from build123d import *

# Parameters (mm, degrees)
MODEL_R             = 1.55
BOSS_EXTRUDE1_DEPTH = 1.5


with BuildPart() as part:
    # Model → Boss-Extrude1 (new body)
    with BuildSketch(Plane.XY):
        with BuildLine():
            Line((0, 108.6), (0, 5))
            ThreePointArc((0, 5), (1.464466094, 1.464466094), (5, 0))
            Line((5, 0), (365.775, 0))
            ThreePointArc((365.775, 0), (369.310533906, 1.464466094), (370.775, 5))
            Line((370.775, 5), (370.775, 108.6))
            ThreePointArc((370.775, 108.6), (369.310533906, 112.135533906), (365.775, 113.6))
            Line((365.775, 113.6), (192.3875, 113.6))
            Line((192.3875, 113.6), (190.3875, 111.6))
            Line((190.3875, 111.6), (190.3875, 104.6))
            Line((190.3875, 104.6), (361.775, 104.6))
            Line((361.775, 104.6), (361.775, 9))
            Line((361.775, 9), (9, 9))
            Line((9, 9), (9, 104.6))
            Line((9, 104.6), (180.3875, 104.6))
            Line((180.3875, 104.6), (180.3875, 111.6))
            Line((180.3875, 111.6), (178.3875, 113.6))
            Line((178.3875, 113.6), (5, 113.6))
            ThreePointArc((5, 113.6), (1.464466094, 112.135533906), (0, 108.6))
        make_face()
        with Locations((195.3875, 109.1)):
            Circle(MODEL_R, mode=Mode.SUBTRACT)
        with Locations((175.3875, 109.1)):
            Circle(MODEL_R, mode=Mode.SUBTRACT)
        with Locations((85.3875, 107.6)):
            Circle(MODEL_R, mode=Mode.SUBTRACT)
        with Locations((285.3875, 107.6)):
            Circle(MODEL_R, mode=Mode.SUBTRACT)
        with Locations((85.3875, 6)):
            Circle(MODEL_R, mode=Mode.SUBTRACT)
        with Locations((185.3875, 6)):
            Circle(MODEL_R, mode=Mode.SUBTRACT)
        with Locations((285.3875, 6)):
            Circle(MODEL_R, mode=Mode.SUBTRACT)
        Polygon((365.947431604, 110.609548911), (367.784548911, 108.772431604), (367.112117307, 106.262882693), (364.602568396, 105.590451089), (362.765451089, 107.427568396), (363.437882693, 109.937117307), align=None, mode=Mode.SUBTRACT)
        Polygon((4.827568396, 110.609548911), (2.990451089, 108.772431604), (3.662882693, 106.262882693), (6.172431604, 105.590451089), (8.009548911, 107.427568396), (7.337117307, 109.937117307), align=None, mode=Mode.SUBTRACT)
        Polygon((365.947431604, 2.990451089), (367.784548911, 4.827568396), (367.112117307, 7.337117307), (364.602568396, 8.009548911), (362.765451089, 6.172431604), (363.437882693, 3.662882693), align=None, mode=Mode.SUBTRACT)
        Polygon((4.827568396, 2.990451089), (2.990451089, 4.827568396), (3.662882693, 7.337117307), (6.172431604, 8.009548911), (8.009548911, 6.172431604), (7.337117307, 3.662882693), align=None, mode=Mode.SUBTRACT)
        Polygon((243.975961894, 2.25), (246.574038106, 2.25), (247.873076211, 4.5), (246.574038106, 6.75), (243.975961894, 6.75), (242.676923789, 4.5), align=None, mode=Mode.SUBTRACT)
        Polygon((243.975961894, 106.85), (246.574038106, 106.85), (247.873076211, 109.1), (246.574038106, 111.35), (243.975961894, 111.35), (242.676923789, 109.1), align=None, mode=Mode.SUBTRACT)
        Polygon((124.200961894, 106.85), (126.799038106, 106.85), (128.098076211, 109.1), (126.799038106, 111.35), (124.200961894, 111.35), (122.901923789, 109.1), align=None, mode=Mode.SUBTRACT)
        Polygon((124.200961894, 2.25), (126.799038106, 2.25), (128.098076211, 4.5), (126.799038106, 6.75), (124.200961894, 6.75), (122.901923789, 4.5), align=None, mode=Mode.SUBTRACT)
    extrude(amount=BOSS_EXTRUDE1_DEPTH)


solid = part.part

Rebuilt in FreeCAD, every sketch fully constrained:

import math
import FreeCAD as App
import Part
import Sketcher
Q = App.Units.Quantity

doc = App.newDocument("Part")
body = doc.addObject("PartDesign::Body", "Body")

sketch1 = body.newObject("Sketcher::SketchObject", "Sketch")
sketch1.AttachmentSupport = (doc.getObject("XY_Plane"), [""])
sketch1.MapMode = "FlatFace"
sketch1.addGeometry(Part.LineSegment(App.Vector(0, 108.6, 0), App.Vector(0, 5, 0)), False)
sketch1.addGeometry(Part.ArcOfCircle(Part.Circle(App.Vector(5, 5, 0), App.Vector(0, 0, 1), 5), math.radians(180), math.radians(270)), False)
sketch1.addGeometry(Part.LineSegment(App.Vector(5, 0, 0), App.Vector(365.8, 0, 0)), False)
sketch1.addGeometry(Part.ArcOfCircle(Part.Circle(App.Vector(365.8, 5, 0), App.Vector(0, 0, 1), 5), math.radians(-90), math.radians(0)), False)
sketch1.addGeometry(Part.LineSegment(App.Vector(370.8, 5, 0), App.Vector(370.8, 108.6, 0)), False)
sketch1.addGeometry(Part.ArcOfCircle(Part.Circle(App.Vector(365.8, 108.6, 0), App.Vector(0, 0, 1), 5), math.radians(0), math.radians(90)), False)
sketch1.addGeometry(Part.LineSegment(App.Vector(365.8, 113.6, 0), App.Vector(192.4, 113.6, 0)), False)
sketch1.addGeometry(Part.LineSegment(App.Vector(192.4, 113.6, 0), App.Vector(190.4, 111.6, 0)), False)
sketch1.addGeometry(Part.LineSegment(App.Vector(190.4, 111.6, 0), App.Vector(190.4, 104.6, 0)), False)
sketch1.addGeometry(Part.LineSegment(App.Vector(190.4, 104.6, 0), App.Vector(361.8, 104.6, 0)), False)
sketch1.addGeometry(Part.LineSegment(App.Vector(361.8, 104.6, 0), App.Vector(361.8, 9, 0)), False)
sketch1.addGeometry(Part.LineSegment(App.Vector(361.8, 9, 0), App.Vector(9, 9, 0)), False)
sketch1.addGeometry(Part.LineSegment(App.Vector(9, 9, 0), App.Vector(9, 104.6, 0)), False)
sketch1.addGeometry(Part.LineSegment(App.Vector(9, 104.6, 0), App.Vector(180.4, 104.6, 0)), False)
sketch1.addGeometry(Part.LineSegment(App.Vector(180.4, 104.6, 0), App.Vector(180.4, 111.6, 0)), False)
sketch1.addGeometry(Part.LineSegment(App.Vector(180.4, 111.6, 0), App.Vector(178.4, 113.6, 0)), False)
sketch1.addGeometry(Part.LineSegment(App.Vector(178.4, 113.6, 0), App.Vector(5, 113.6, 0)), False)
sketch1.addGeometry(Part.ArcOfCircle(Part.Circle(App.Vector(5, 108.6, 0), App.Vector(0, 0, 1), 5), math.radians(90), math.radians(180)), False)
sketch1.addGeometry(Part.LineSegment(App.Vector(7.3, 3.7, 0), App.Vector(4.8, 3, 0)), False)
sketch1.addGeometry(Part.LineSegment(App.Vector(4.8, 3, 0), App.Vector(3, 4.8, 0)), False)
sketch1.addGeometry(Part.LineSegment(App.Vector(3, 4.8, 0), App.Vector(3.7, 7.3, 0)), False)
sketch1.addGeometry(Part.LineSegment(App.Vector(3.7, 7.3, 0), App.Vector(6.2, 8, 0)), False)
sketch1.addGeometry(Part.LineSegment(App.Vector(6.2, 8, 0), App.Vector(8, 6.2, 0)), False)
sketch1.addGeometry(Part.LineSegment(App.Vector(8, 6.2, 0), App.Vector(7.3, 3.7, 0)), False)
sketch1.addGeometry(Part.Circle(App.Vector(85.4, 6, 0), App.Vector(0, 0, 1), 1.6), False)
sketch1.addGeometry(Part.LineSegment(App.Vector(126.8, 2.2, 0), App.Vector(124.2, 2.2, 0)), False)
sketch1.addGeometry(Part.LineSegment(App.Vector(124.2, 2.2, 0), App.Vector(122.9, 4.5, 0)), False)
sketch1.addGeometry(Part.LineSegment(App.Vector(122.9, 4.5, 0), App.Vector(124.2, 6.8, 0)), False)
sketch1.addGeometry(Part.LineSegment(App.Vector(124.2, 6.8, 0), App.Vector(126.8, 6.8, 0)), False)
sketch1.addGeometry(Part.LineSegment(App.Vector(126.8, 6.8, 0), App.Vector(128.1, 4.5, 0)), False)
sketch1.addGeometry(Part.LineSegment(App.Vector(128.1, 4.5, 0), App.Vector(126.8, 2.2, 0)), False)
sketch1.addGeometry(Part.Circle(App.Vector(185.4, 6, 0), App.Vector(0, 0, 1), 1.6), False)
sketch1.addGeometry(Part.LineSegment(App.Vector(246.6, 2.2, 0), App.Vector(244, 2.2, 0)), False)
sketch1.addGeometry(Part.LineSegment(App.Vector(244, 2.2, 0), App.Vector(242.7, 4.5, 0)), False)
sketch1.addGeometry(Part.LineSegment(App.Vector(242.7, 4.5, 0), App.Vector(244, 6.8, 0)), False)
sketch1.addGeometry(Part.LineSegment(App.Vector(244, 6.8, 0), App.Vector(246.6, 6.8, 0)), False)
sketch1.addGeometry(Part.LineSegment(App.Vector(246.6, 6.8, 0), App.Vector(247.9, 4.5, 0)), False)
sketch1.addGeometry(Part.LineSegment(App.Vector(247.9, 4.5, 0), App.Vector(246.6, 2.2, 0)), False)
sketch1.addGeometry(Part.Circle(App.Vector(285.4, 6, 0), App.Vector(0, 0, 1), 1.6), False)
sketch1.addGeometry(Part.LineSegment(App.Vector(367.8, 4.8, 0), App.Vector(365.9, 3, 0)), False)
sketch1.addGeometry(Part.LineSegment(App.Vector(365.9, 3, 0), App.Vector(363.4, 3.7, 0)), False)
sketch1.addGeometry(Part.LineSegment(App.Vector(363.4, 3.7, 0), App.Vector(362.8, 6.2, 0)), False)
sketch1.addGeometry(Part.LineSegment(App.Vector(362.8, 6.2, 0), App.Vector(364.6, 8, 0)), False)
sketch1.addGeometry(Part.LineSegment(App.Vector(364.6, 8, 0), App.Vector(367.1, 7.3, 0)), False)
sketch1.addGeometry(Part.LineSegment(App.Vector(367.1, 7.3, 0), App.Vector(367.8, 4.8, 0)), False)
sketch1.addGeometry(Part.LineSegment(App.Vector(3, 108.8, 0), App.Vector(4.8, 110.6, 0)), False)
sketch1.addGeometry(Part.LineSegment(App.Vector(4.8, 110.6, 0), App.Vector(7.3, 109.9, 0)), False)
sketch1.addGeometry(Part.LineSegment(App.Vector(7.3, 109.9, 0), App.Vector(8, 107.4, 0)), False)
sketch1.addGeometry(Part.LineSegment(App.Vector(8, 107.4, 0), App.Vector(6.2, 105.6, 0)), False)
sketch1.addGeometry(Part.LineSegment(App.Vector(6.2, 105.6, 0), App.Vector(3.7, 106.3, 0)), False)
sketch1.addGeometry(Part.LineSegment(App.Vector(3.7, 106.3, 0), App.Vector(3, 108.8, 0)), False)
sketch1.addGeometry(Part.Circle(App.Vector(85.4, 107.6, 0), App.Vector(0, 0, 1), 1.6), False)
sketch1.addGeometry(Part.LineSegment(App.Vector(126.8, 106.8, 0), App.Vector(124.2, 106.8, 0)), False)
sketch1.addGeometry(Part.LineSegment(App.Vector(124.2, 106.8, 0), App.Vector(122.9, 109.1, 0)), False)
sketch1.addGeometry(Part.LineSegment(App.Vector(122.9, 109.1, 0), App.Vector(124.2, 111.3, 0)), False)
sketch1.addGeometry(Part.LineSegment(App.Vector(124.2, 111.3, 0), App.Vector(126.8, 111.3, 0)), False)
sketch1.addGeometry(Part.LineSegment(App.Vector(126.8, 111.3, 0), App.Vector(128.1, 109.1, 0)), False)
sketch1.addGeometry(Part.LineSegment(App.Vector(128.1, 109.1, 0), App.Vector(126.8, 106.8, 0)), False)
sketch1.addGeometry(Part.Circle(App.Vector(175.4, 109.1, 0), App.Vector(0, 0, 1), 1.6), False)
sketch1.addGeometry(Part.Circle(App.Vector(195.4, 109.1, 0), App.Vector(0, 0, 1), 1.6), False)
sketch1.addGeometry(Part.LineSegment(App.Vector(246.6, 106.8, 0), App.Vector(244, 106.8, 0)), False)
sketch1.addGeometry(Part.LineSegment(App.Vector(244, 106.8, 0), App.Vector(242.7, 109.1, 0)), False)
sketch1.addGeometry(Part.LineSegment(App.Vector(242.7, 109.1, 0), App.Vector(244, 111.3, 0)), False)
sketch1.addGeometry(Part.LineSegment(App.Vector(244, 111.3, 0), App.Vector(246.6, 111.3, 0)), False)
sketch1.addGeometry(Part.LineSegment(App.Vector(246.6, 111.3, 0), App.Vector(247.9, 109.1, 0)), False)
sketch1.addGeometry(Part.LineSegment(App.Vector(247.9, 109.1, 0), App.Vector(246.6, 106.8, 0)), False)
sketch1.addGeometry(Part.Circle(App.Vector(285.4, 107.6, 0), App.Vector(0, 0, 1), 1.6), False)
sketch1.addGeometry(Part.LineSegment(App.Vector(363.4, 109.9, 0), App.Vector(365.9, 110.6, 0)), False)
sketch1.addGeometry(Part.LineSegment(App.Vector(365.9, 110.6, 0), App.Vector(367.8, 108.8, 0)), False)
sketch1.addGeometry(Part.LineSegment(App.Vector(367.8, 108.8, 0), App.Vector(367.1, 106.3, 0)), False)
sketch1.addGeometry(Part.LineSegment(App.Vector(367.1, 106.3, 0), App.Vector(364.6, 105.6, 0)), False)
sketch1.addGeometry(Part.LineSegment(App.Vector(364.6, 105.6, 0), App.Vector(362.8, 107.4, 0)), False)
sketch1.addGeometry(Part.LineSegment(App.Vector(362.8, 107.4, 0), App.Vector(363.4, 109.9, 0)), False)
sketch1.addConstraint(Sketcher.Constraint("Tangent", 0, 2, 1, 1))
sketch1.addConstraint(Sketcher.Constraint("Tangent", 1, 2, 2, 1))
sketch1.addConstraint(Sketcher.Constraint("Tangent", 2, 2, 3, 1))
sketch1.addConstraint(Sketcher.Constraint("Tangent", 3, 2, 4, 1))
sketch1.addConstraint(Sketcher.Constraint("Tangent", 4, 2, 5, 1))
sketch1.addConstraint(Sketcher.Constraint("Tangent", 5, 2, 6, 1))
sketch1.addConstraint(Sketcher.Constraint("Coincident", 6, 2, 7, 1))
sketch1.addConstraint(Sketcher.Constraint("Coincident", 7, 2, 8, 1))
sketch1.addConstraint(Sketcher.Constraint("Coincident", 8, 2, 9, 1))
sketch1.addConstraint(Sketcher.Constraint("Coincident", 9, 2, 10, 1))
sketch1.addConstraint(Sketcher.Constraint("Coincident", 10, 2, 11, 1))
sketch1.addConstraint(Sketcher.Constraint("Coincident", 11, 2, 12, 1))
sketch1.addConstraint(Sketcher.Constraint("Coincident", 12, 2, 13, 1))
sketch1.addConstraint(Sketcher.Constraint("Coincident", 13, 2, 14, 1))
sketch1.addConstraint(Sketcher.Constraint("Coincident", 14, 2, 15, 1))
sketch1.addConstraint(Sketcher.Constraint("Coincident", 15, 2, 16, 1))
sketch1.addConstraint(Sketcher.Constraint("Tangent", 16, 2, 17, 1))
sketch1.addConstraint(Sketcher.Constraint("Tangent", 17, 2, 0, 1))
sketch1.addConstraint(Sketcher.Constraint("Coincident", 18, 2, 19, 1))
sketch1.addConstraint(Sketcher.Constraint("Coincident", 19, 2, 20, 1))
sketch1.addConstraint(Sketcher.Constraint("Coincident", 20, 2, 21, 1))
sketch1.addConstraint(Sketcher.Constraint("Coincident", 21, 2, 22, 1))
sketch1.addConstraint(Sketcher.Constraint("Coincident", 22, 2, 23, 1))
sketch1.addConstraint(Sketcher.Constraint("Coincident", 23, 2, 18, 1))
sketch1.addConstraint(Sketcher.Constraint("Coincident", 25, 2, 26, 1))
sketch1.addConstraint(Sketcher.Constraint("Coincident", 26, 2, 27, 1))
sketch1.addConstraint(Sketcher.Constraint("Coincident", 27, 2, 28, 1))
sketch1.addConstraint(Sketcher.Constraint("Coincident", 28, 2, 29, 1))
sketch1.addConstraint(Sketcher.Constraint("Coincident", 29, 2, 30, 1))
sketch1.addConstraint(Sketcher.Constraint("Coincident", 30, 2, 25, 1))
sketch1.addConstraint(Sketcher.Constraint("Coincident", 32, 2, 33, 1))
sketch1.addConstraint(Sketcher.Constraint("Coincident", 33, 2, 34, 1))
sketch1.addConstraint(Sketcher.Constraint("Coincident", 34, 2, 35, 1))
sketch1.addConstraint(Sketcher.Constraint("Coincident", 35, 2, 36, 1))
sketch1.addConstraint(Sketcher.Constraint("Coincident", 36, 2, 37, 1))
sketch1.addConstraint(Sketcher.Constraint("Coincident", 37, 2, 32, 1))
sketch1.addConstraint(Sketcher.Constraint("Coincident", 39, 2, 40, 1))
sketch1.addConstraint(Sketcher.Constraint("Coincident", 40, 2, 41, 1))
sketch1.addConstraint(Sketcher.Constraint("Coincident", 41, 2, 42, 1))
sketch1.addConstraint(Sketcher.Constraint("Coincident", 42, 2, 43, 1))
sketch1.addConstraint(Sketcher.Constraint("Coincident", 43, 2, 44, 1))
sketch1.addConstraint(Sketcher.Constraint("Coincident", 44, 2, 39, 1))
sketch1.addConstraint(Sketcher.Constraint("Coincident", 45, 2, 46, 1))
sketch1.addConstraint(Sketcher.Constraint("Coincident", 46, 2, 47, 1))
sketch1.addConstraint(Sketcher.Constraint("Coincident", 47, 2, 48, 1))
sketch1.addConstraint(Sketcher.Constraint("Coincident", 48, 2, 49, 1))
sketch1.addConstraint(Sketcher.Constraint("Coincident", 49, 2, 50, 1))
sketch1.addConstraint(Sketcher.Constraint("Coincident", 50, 2, 45, 1))
sketch1.addConstraint(Sketcher.Constraint("Coincident", 52, 2, 53, 1))
sketch1.addConstraint(Sketcher.Constraint("Coincident", 53, 2, 54, 1))
sketch1.addConstraint(Sketcher.Constraint("Coincident", 54, 2, 55, 1))
sketch1.addConstraint(Sketcher.Constraint("Coincident", 55, 2, 56, 1))
sketch1.addConstraint(Sketcher.Constraint("Coincident", 56, 2, 57, 1))
sketch1.addConstraint(Sketcher.Constraint("Coincident", 57, 2, 52, 1))
sketch1.addConstraint(Sketcher.Constraint("Coincident", 60, 2, 61, 1))
sketch1.addConstraint(Sketcher.Constraint("Coincident", 61, 2, 62, 1))
sketch1.addConstraint(Sketcher.Constraint("Coincident", 62, 2, 63, 1))
sketch1.addConstraint(Sketcher.Constraint("Coincident", 63, 2, 64, 1))
sketch1.addConstraint(Sketcher.Constraint("Coincident", 64, 2, 65, 1))
sketch1.addConstraint(Sketcher.Constraint("Coincident", 65, 2, 60, 1))
sketch1.addConstraint(Sketcher.Constraint("Coincident", 67, 2, 68, 1))
sketch1.addConstraint(Sketcher.Constraint("Coincident", 68, 2, 69, 1))
sketch1.addConstraint(Sketcher.Constraint("Coincident", 69, 2, 70, 1))
sketch1.addConstraint(Sketcher.Constraint("Coincident", 70, 2, 71, 1))
sketch1.addConstraint(Sketcher.Constraint("Coincident", 71, 2, 72, 1))
sketch1.addConstraint(Sketcher.Constraint("Coincident", 72, 2, 67, 1))
sketch1.addConstraint(Sketcher.Constraint("Vertical", 0))
sketch1.addConstraint(Sketcher.Constraint("Horizontal", 2))
sketch1.addConstraint(Sketcher.Constraint("Vertical", 4))
sketch1.addConstraint(Sketcher.Constraint("Horizontal", 6))
sketch1.addConstraint(Sketcher.Constraint("Vertical", 8))
sketch1.addConstraint(Sketcher.Constraint("Horizontal", 9))
sketch1.addConstraint(Sketcher.Constraint("Vertical", 10))
sketch1.addConstraint(Sketcher.Constraint("Horizontal", 11))
sketch1.addConstraint(Sketcher.Constraint("Vertical", 12))
sketch1.addConstraint(Sketcher.Constraint("Horizontal", 13))
sketch1.addConstraint(Sketcher.Constraint("Vertical", 14))
sketch1.addConstraint(Sketcher.Constraint("Horizontal", 16))
sketch1.addConstraint(Sketcher.Constraint("Horizontal", 25))
sketch1.addConstraint(Sketcher.Constraint("Horizontal", 28))
sketch1.addConstraint(Sketcher.Constraint("Horizontal", 32))
sketch1.addConstraint(Sketcher.Constraint("Horizontal", 35))
sketch1.addConstraint(Sketcher.Constraint("Horizontal", 52))
sketch1.addConstraint(Sketcher.Constraint("Horizontal", 55))
sketch1.addConstraint(Sketcher.Constraint("Horizontal", 60))
sketch1.addConstraint(Sketcher.Constraint("Horizontal", 63))
sketch1.addConstraint(Sketcher.Constraint("Equal", 1, 3))
sketch1.addConstraint(Sketcher.Constraint("Equal", 3, 5))
sketch1.addConstraint(Sketcher.Constraint("Equal", 5, 17))
sketch1.addConstraint(Sketcher.Constraint("Equal", 24, 31))
sketch1.addConstraint(Sketcher.Constraint("Equal", 31, 38))
sketch1.addConstraint(Sketcher.Constraint("Equal", 38, 51))
sketch1.addConstraint(Sketcher.Constraint("Equal", 51, 58))
sketch1.addConstraint(Sketcher.Constraint("Equal", 58, 59))
sketch1.addConstraint(Sketcher.Constraint("Equal", 59, 66))
sketch1.addConstraint(Sketcher.Constraint("PointOnObject", 0, 2, -2))
sketch1.addConstraint(Sketcher.Constraint("PointOnObject", 1, 2, -1))
sketch1.addConstraint(Sketcher.Constraint("Perpendicular", 7, 15))
sketch1.addConstraint(Sketcher.Constraint("Parallel", 15, 19))
sketch1.addConstraint(Sketcher.Constraint("Parallel", 18, 21))
sketch1.addConstraint(Sketcher.Constraint("Parallel", 19, 22))
sketch1.addConstraint(Sketcher.Constraint("Parallel", 20, 23))
sketch1.addConstraint(Sketcher.Constraint("Parallel", 26, 29))
sketch1.addConstraint(Sketcher.Constraint("Parallel", 27, 30))
sketch1.addConstraint(Sketcher.Constraint("Parallel", 29, 33))
sketch1.addConstraint(Sketcher.Constraint("Parallel", 30, 34))
sketch1.addConstraint(Sketcher.Constraint("Parallel", 33, 36))
sketch1.addConstraint(Sketcher.Constraint("Parallel", 34, 37))
sketch1.addConstraint(Sketcher.Constraint("Perpendicular", 22, 39))
sketch1.addConstraint(Sketcher.Constraint("Perpendicular", 23, 40))
sketch1.addConstraint(Sketcher.Constraint("Perpendicular", 21, 41))
sketch1.addConstraint(Sketcher.Constraint("Parallel", 39, 42))
sketch1.addConstraint(Sketcher.Constraint("Parallel", 40, 43))
sketch1.addConstraint(Sketcher.Constraint("Parallel", 41, 44))
sketch1.addConstraint(Sketcher.Constraint("Parallel", 42, 45))
sketch1.addConstraint(Sketcher.Constraint("Parallel", 43, 46))
sketch1.addConstraint(Sketcher.Constraint("Parallel", 44, 47))
sketch1.addConstraint(Sketcher.Constraint("Parallel", 45, 48))
sketch1.addConstraint(Sketcher.Constraint("Parallel", 46, 49))
sketch1.addConstraint(Sketcher.Constraint("Parallel", 47, 50))
sketch1.addConstraint(Sketcher.Constraint("Parallel", 36, 53))
sketch1.addConstraint(Sketcher.Constraint("Parallel", 37, 54))
sketch1.addConstraint(Sketcher.Constraint("Parallel", 53, 56))
sketch1.addConstraint(Sketcher.Constraint("Parallel", 54, 57))
sketch1.addConstraint(Sketcher.Constraint("Parallel", 56, 61))
sketch1.addConstraint(Sketcher.Constraint("Parallel", 57, 62))
sketch1.addConstraint(Sketcher.Constraint("Parallel", 61, 64))
sketch1.addConstraint(Sketcher.Constraint("Parallel", 62, 65))
sketch1.addConstraint(Sketcher.Constraint("Perpendicular", 50, 67))
sketch1.addConstraint(Sketcher.Constraint("Perpendicular", 48, 68))
sketch1.addConstraint(Sketcher.Constraint("Perpendicular", 49, 69))
sketch1.addConstraint(Sketcher.Constraint("Parallel", 67, 70))
sketch1.addConstraint(Sketcher.Constraint("Parallel", 68, 71))
sketch1.addConstraint(Sketcher.Constraint("Parallel", 69, 72))
sketch1.addConstraint(Sketcher.Constraint("Horizontal", 5, 3, 17, 3))
sketch1.addConstraint(Sketcher.Constraint("Horizontal", 24, 3, 31, 3))
sketch1.addConstraint(Sketcher.Constraint("Horizontal", 31, 3, 38, 3))
sketch1.addConstraint(Sketcher.Constraint("Horizontal", 58, 3, 59, 3))
sketch1.addConstraint(Sketcher.Constraint("Horizontal", 51, 3, 66, 3))
sketch1.addConstraint(Sketcher.Constraint("Horizontal", 9, 2, 12, 2))
sketch1.addConstraint(Sketcher.Constraint("Horizontal", 7, 2, 14, 2))
sketch1.addConstraint(Sketcher.Constraint("Horizontal", 26, 2, 29, 2))
sketch1.addConstraint(Sketcher.Constraint("Horizontal", 30, 2, 32, 2))
sketch1.addConstraint(Sketcher.Constraint("Horizontal", 29, 2, 33, 2))
sketch1.addConstraint(Sketcher.Constraint("Horizontal", 28, 2, 34, 2))
sketch1.addConstraint(Sketcher.Constraint("Horizontal", 33, 2, 36, 2))
sketch1.addConstraint(Sketcher.Constraint("Horizontal", 18, 2, 39, 2))
sketch1.addConstraint(Sketcher.Constraint("Horizontal", 23, 2, 40, 2))
sketch1.addConstraint(Sketcher.Constraint("Horizontal", 22, 2, 41, 2))
sketch1.addConstraint(Sketcher.Constraint("Horizontal", 21, 2, 42, 2))
sketch1.addConstraint(Sketcher.Constraint("Horizontal", 20, 2, 43, 2))
sketch1.addConstraint(Sketcher.Constraint("Horizontal", 59, 3, 53, 2))
sketch1.addConstraint(Sketcher.Constraint("Horizontal", 53, 2, 56, 2))
sketch1.addConstraint(Sketcher.Constraint("Horizontal", 57, 2, 60, 2))
sketch1.addConstraint(Sketcher.Constraint("Horizontal", 56, 2, 61, 2))
sketch1.addConstraint(Sketcher.Constraint("Horizontal", 55, 2, 62, 2))
sketch1.addConstraint(Sketcher.Constraint("Horizontal", 61, 2, 64, 2))
sketch1.addConstraint(Sketcher.Constraint("Horizontal", 45, 2, 67, 2))
sketch1.addConstraint(Sketcher.Constraint("Horizontal", 50, 2, 68, 2))
sketch1.addConstraint(Sketcher.Constraint("Horizontal", 49, 2, 69, 2))
sketch1.addConstraint(Sketcher.Constraint("Horizontal", 48, 2, 70, 2))
sketch1.addConstraint(Sketcher.Constraint("Horizontal", 47, 2, 71, 2))
sketch1.addConstraint(Sketcher.Constraint("Vertical", 24, 3, 51, 3))
sketch1.addConstraint(Sketcher.Constraint("Vertical", 38, 3, 66, 3))
sketch1.addConstraint(Sketcher.Constraint("Vertical", 25, 2, 27, 2))
sketch1.addConstraint(Sketcher.Constraint("Vertical", 28, 2, 30, 2))
sketch1.addConstraint(Sketcher.Constraint("Vertical", 18, 2, 45, 2))
sketch1.addConstraint(Sketcher.Constraint("Vertical", 23, 2, 46, 2))
sketch1.addConstraint(Sketcher.Constraint("Vertical", 22, 2, 47, 2))
sketch1.addConstraint(Sketcher.Constraint("Vertical", 21, 2, 48, 2))
sketch1.addConstraint(Sketcher.Constraint("Vertical", 20, 2, 49, 2))
sketch1.addConstraint(Sketcher.Constraint("Vertical", 27, 2, 52, 2))
sketch1.addConstraint(Sketcher.Constraint("Vertical", 26, 2, 53, 2))
sketch1.addConstraint(Sketcher.Constraint("Vertical", 52, 2, 54, 2))
sketch1.addConstraint(Sketcher.Constraint("Vertical", 30, 2, 55, 2))
sketch1.addConstraint(Sketcher.Constraint("Vertical", 34, 2, 60, 2))
sketch1.addConstraint(Sketcher.Constraint("Vertical", 37, 2, 63, 2))
sketch1.addConstraint(Sketcher.Constraint("Vertical", 39, 2, 67, 2))
sketch1.addConstraint(Sketcher.Constraint("Vertical", 44, 2, 68, 2))
sketch1.addConstraint(Sketcher.Constraint("Vertical", 43, 2, 69, 2))
sketch1.addConstraint(Sketcher.Constraint("Equal", 9, 13))
sketch1.addConstraint(Sketcher.Constraint("Equal", 6, 16))
sketch1.addConstraint(Sketcher.Constraint("Equal", 28, 32))
sketch1.addConstraint(Sketcher.Constraint("Equal", 18, 19))
sketch1.addConstraint(Sketcher.Constraint("Equal", 19, 20))
sketch1.addConstraint(Sketcher.Constraint("Equal", 20, 21))
sketch1.addConstraint(Sketcher.Constraint("Equal", 23, 26))
sketch1.addConstraint(Sketcher.Constraint("Radius", 1, 5.0))
sketch1.addConstraint(Sketcher.Constraint("Diameter", 24, 3.1))
sketch1.addConstraint(Sketcher.Constraint("DistanceY", 8, 2, 8, 1, 7.0))
sketch1.addConstraint(Sketcher.Constraint("Angle", 18, Q("-165 deg")))
sketch1.addConstraint(Sketcher.Constraint("Angle", 26, Q("120 deg")))
sketch1.addConstraint(Sketcher.Constraint("DistanceY", 0, 2, 0, 1, 103.6))
sketch1.addConstraint(Sketcher.Constraint("DistanceY", 10, 2, 10, 1, 95.6))
sketch1.addConstraint(Sketcher.Constraint("DistanceY", -1, 1, 24, 3, 6.0))
sketch1.addConstraint(Sketcher.Constraint("DistanceY", -1, 1, 10, 2, 9.0))
sketch1.addConstraint(Sketcher.Constraint("DistanceX", -1, 1, 11, 2, 9.0))
sketch1.addConstraint(Sketcher.Constraint("DistanceY", -1, 1, 51, 3, 107.6))
sketch1.addConstraint(Sketcher.Constraint("DistanceY", -1, 1, 58, 3, 109.1))
sketch1.addConstraint(Sketcher.Constraint("DistanceY", -1, 1, 26, 2, 4.5))
sketch1.addConstraint(Sketcher.Constraint("DistanceX", 2, 1, 2, 2, 360.775))
sketch1.addConstraint(Sketcher.Constraint("DistanceY", -1, 1, 25, 2, 2.25))
sketch1.addConstraint(Sketcher.Constraint("DistanceX", 6, 2, 6, 1, 173.3875))
sketch1.addConstraint(Sketcher.Constraint("DistanceX", -1, 1, 24, 3, 85.3875))
sketch1.addConstraint(Sketcher.Constraint("DistanceX", -1, 1, 31, 3, 185.3875))
sketch1.addConstraint(Sketcher.Constraint("DistanceX", -1, 1, 38, 3, 285.3875))
sketch1.addConstraint(Sketcher.Constraint("DistanceX", -1, 1, 58, 3, 175.3875))
sketch1.addConstraint(Sketcher.Constraint("DistanceX", -1, 1, 59, 3, 195.3875))
sketch1.addConstraint(Sketcher.Constraint("DistanceX", 25, 2, 25, 1, 2.598076))
sketch1.addConstraint(Sketcher.Constraint("DistanceX", -1, 1, 18, 2, 4.827568))
sketch1.addConstraint(Sketcher.Constraint("DistanceY", -1, 1, 18, 2, 2.990451))
sketch1.addConstraint(Sketcher.Constraint("DistanceX", -1, 1, 25, 2, 124.200962))
sketch1.addConstraint(Sketcher.Constraint("DistanceX", -1, 1, 32, 2, 243.975962))
sketch1.addConstraint(Sketcher.Constraint("DistanceX", -1, 1, 39, 2, 365.947432))
sketch1.addConstraint(Sketcher.Constraint("DistanceY", -1, 1, 45, 2, 110.609549))
pad1 = body.newObject("PartDesign::Pad", "Pad")
pad1.Profile = sketch1
pad1.Length = 1.5

doc.recompute()
